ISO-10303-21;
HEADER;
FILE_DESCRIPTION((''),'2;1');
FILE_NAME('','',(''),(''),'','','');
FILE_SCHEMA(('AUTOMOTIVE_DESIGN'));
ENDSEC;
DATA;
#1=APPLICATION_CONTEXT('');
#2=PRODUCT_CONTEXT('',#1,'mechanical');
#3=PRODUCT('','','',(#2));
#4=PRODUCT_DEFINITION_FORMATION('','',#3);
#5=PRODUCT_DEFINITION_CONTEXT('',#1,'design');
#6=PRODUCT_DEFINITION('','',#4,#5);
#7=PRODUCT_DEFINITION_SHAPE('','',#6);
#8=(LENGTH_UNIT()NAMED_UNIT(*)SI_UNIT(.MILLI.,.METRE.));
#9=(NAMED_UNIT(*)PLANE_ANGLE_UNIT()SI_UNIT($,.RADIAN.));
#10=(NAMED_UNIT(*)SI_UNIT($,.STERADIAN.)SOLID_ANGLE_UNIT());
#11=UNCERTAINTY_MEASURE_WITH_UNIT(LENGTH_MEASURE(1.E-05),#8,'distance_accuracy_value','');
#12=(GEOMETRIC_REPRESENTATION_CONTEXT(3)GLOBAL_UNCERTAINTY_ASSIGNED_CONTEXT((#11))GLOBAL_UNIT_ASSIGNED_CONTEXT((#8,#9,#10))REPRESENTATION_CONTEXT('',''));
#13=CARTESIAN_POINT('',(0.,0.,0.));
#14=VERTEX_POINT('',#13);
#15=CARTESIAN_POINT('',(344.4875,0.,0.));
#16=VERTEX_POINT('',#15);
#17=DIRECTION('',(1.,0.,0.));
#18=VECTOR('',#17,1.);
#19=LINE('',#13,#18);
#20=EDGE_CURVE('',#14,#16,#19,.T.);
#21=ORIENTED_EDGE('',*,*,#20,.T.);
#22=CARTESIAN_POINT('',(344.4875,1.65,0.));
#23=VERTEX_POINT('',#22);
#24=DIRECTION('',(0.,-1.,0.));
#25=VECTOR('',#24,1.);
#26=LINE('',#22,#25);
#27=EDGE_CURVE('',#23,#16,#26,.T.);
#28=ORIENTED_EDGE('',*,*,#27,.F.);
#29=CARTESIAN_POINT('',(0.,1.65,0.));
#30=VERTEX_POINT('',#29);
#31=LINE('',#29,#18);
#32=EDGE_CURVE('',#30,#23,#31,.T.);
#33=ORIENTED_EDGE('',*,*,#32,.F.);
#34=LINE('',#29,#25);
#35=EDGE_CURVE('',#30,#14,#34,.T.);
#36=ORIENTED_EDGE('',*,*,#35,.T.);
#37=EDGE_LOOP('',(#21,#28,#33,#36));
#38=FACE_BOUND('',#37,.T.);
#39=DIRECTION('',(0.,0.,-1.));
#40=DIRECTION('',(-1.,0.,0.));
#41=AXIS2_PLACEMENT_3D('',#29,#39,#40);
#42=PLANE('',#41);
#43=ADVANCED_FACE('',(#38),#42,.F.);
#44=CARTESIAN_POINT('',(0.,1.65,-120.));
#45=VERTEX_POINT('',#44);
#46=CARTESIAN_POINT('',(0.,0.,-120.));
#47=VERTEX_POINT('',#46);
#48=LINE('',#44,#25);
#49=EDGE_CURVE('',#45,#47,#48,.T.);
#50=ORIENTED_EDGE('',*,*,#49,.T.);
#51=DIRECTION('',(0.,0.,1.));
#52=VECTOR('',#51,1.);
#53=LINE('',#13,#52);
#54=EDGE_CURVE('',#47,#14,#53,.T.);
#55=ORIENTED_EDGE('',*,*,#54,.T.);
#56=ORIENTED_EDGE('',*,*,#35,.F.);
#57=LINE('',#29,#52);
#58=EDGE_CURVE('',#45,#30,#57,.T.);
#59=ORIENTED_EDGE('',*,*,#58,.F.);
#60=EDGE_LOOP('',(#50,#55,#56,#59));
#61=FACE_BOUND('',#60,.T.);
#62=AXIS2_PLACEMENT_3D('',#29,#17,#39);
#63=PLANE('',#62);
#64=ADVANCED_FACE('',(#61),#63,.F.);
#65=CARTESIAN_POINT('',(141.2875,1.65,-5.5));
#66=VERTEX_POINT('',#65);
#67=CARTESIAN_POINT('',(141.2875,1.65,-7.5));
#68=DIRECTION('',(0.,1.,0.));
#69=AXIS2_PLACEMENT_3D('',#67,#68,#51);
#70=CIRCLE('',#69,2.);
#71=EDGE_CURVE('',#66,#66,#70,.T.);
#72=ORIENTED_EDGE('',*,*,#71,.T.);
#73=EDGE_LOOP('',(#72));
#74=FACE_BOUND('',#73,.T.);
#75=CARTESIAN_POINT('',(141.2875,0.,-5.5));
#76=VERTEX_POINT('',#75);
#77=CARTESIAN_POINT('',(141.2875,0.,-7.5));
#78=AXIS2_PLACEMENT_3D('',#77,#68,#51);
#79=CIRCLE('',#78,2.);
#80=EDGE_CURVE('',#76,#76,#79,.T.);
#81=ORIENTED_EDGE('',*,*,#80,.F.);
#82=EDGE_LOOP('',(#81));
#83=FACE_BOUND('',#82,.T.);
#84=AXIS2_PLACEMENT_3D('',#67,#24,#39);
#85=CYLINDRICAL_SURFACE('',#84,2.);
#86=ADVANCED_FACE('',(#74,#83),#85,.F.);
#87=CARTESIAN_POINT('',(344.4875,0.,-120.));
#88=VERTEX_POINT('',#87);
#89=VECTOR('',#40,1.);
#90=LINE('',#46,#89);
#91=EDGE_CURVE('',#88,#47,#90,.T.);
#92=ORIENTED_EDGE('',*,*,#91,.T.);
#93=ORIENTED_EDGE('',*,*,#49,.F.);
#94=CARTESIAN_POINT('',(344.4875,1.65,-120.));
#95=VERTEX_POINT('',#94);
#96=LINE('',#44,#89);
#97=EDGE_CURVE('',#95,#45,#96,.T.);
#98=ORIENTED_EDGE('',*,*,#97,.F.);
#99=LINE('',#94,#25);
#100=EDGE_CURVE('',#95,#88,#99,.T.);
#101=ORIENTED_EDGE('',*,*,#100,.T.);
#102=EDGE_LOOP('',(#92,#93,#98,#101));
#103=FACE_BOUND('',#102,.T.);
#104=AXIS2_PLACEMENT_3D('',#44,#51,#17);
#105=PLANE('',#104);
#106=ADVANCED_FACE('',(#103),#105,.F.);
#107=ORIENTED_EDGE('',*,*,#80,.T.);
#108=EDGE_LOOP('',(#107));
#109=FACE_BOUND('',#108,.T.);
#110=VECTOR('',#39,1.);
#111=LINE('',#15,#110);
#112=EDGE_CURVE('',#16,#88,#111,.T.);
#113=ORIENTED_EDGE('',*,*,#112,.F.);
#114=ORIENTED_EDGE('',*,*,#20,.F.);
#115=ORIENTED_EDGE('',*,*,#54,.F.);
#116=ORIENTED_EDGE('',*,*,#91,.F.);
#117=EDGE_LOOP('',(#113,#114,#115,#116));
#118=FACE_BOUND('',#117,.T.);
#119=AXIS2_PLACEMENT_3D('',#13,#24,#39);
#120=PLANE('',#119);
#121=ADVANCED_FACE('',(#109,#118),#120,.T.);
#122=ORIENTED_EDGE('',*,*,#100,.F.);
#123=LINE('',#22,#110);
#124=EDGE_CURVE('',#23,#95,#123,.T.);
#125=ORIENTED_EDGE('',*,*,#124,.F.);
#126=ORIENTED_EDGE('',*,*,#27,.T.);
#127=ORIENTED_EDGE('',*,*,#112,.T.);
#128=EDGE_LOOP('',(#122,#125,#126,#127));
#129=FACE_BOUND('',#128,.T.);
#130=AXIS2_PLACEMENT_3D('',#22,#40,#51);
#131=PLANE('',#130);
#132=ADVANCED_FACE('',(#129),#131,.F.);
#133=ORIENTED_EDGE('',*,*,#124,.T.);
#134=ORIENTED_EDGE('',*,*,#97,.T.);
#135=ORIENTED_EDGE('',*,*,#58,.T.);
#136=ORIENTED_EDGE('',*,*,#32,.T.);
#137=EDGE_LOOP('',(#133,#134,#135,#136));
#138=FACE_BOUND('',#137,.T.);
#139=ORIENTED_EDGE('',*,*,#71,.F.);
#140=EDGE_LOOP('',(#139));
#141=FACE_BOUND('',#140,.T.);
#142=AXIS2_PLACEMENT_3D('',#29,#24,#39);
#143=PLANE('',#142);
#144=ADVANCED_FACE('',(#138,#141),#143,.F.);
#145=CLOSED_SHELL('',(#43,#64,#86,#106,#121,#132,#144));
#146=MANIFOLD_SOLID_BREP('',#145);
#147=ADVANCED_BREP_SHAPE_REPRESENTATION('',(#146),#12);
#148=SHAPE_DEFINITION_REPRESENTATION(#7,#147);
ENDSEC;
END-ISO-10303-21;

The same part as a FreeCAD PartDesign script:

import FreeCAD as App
import Part
import Sketcher
from FreeCAD import Vector


def add_polygon(sketch, points):
    """Adds a closed chain of lines whose ends are joined by coincident constraints."""
    first, n = sketch.GeometryCount, len(points)
    for a, b in zip(points, points[1:] + points[:1]):
        sketch.addGeometry(Part.LineSegment(App.Vector(*a, 0), App.Vector(*b, 0)), False)
    for i in range(n):
        sketch.addConstraint(Sketcher.Constraint("Coincident", first + i, 2, first + (i + 1) % n, 1))

doc = App.newDocument("Part")
body = doc.addObject("PartDesign::Body", "Body")

sketch1 = body.newObject("Sketcher::SketchObject", "Sketch")
sketch1.AttachmentSupport = (doc.getObject("XZ_Plane"), [""])
sketch1.MapMode = "FlatFace"
add_polygon(sketch1, [(0, -120), (0, 0), (344.5, 0), (344.5, -120)])
sketch1.addGeometry(Part.Circle(Vector(141.3, -7.5, 0), Vector(0, 0, 1), 2), False)
sketch1.addConstraint([
    Sketcher.Constraint("Vertical", 0),
    Sketcher.Constraint("Horizontal", 1),
    Sketcher.Constraint("Vertical", 2),
    Sketcher.Constraint("Horizontal", 3),
    Sketcher.Constraint("Coincident", 0, 2, -1, 1),
    Sketcher.Constraint("Diameter", 4, 4.0),
    Sketcher.Constraint("DistanceY", 0, 1, 0, 2, 120.0),
    Sketcher.Constraint("DistanceY", 4, 3, -1, 1, 7.5),
    Sketcher.Constraint("DistanceX", 4, 3, 1, 2, 203.2),
    Sketcher.Constraint("DistanceX", 1, 1, 1, 2, 344.4875),
])
pad1 = body.newObject("PartDesign::Pad", "Pad")
pad1.Profile = sketch1
pad1.Length = 1.65
pad1.Reversed = True

doc.recompute()
